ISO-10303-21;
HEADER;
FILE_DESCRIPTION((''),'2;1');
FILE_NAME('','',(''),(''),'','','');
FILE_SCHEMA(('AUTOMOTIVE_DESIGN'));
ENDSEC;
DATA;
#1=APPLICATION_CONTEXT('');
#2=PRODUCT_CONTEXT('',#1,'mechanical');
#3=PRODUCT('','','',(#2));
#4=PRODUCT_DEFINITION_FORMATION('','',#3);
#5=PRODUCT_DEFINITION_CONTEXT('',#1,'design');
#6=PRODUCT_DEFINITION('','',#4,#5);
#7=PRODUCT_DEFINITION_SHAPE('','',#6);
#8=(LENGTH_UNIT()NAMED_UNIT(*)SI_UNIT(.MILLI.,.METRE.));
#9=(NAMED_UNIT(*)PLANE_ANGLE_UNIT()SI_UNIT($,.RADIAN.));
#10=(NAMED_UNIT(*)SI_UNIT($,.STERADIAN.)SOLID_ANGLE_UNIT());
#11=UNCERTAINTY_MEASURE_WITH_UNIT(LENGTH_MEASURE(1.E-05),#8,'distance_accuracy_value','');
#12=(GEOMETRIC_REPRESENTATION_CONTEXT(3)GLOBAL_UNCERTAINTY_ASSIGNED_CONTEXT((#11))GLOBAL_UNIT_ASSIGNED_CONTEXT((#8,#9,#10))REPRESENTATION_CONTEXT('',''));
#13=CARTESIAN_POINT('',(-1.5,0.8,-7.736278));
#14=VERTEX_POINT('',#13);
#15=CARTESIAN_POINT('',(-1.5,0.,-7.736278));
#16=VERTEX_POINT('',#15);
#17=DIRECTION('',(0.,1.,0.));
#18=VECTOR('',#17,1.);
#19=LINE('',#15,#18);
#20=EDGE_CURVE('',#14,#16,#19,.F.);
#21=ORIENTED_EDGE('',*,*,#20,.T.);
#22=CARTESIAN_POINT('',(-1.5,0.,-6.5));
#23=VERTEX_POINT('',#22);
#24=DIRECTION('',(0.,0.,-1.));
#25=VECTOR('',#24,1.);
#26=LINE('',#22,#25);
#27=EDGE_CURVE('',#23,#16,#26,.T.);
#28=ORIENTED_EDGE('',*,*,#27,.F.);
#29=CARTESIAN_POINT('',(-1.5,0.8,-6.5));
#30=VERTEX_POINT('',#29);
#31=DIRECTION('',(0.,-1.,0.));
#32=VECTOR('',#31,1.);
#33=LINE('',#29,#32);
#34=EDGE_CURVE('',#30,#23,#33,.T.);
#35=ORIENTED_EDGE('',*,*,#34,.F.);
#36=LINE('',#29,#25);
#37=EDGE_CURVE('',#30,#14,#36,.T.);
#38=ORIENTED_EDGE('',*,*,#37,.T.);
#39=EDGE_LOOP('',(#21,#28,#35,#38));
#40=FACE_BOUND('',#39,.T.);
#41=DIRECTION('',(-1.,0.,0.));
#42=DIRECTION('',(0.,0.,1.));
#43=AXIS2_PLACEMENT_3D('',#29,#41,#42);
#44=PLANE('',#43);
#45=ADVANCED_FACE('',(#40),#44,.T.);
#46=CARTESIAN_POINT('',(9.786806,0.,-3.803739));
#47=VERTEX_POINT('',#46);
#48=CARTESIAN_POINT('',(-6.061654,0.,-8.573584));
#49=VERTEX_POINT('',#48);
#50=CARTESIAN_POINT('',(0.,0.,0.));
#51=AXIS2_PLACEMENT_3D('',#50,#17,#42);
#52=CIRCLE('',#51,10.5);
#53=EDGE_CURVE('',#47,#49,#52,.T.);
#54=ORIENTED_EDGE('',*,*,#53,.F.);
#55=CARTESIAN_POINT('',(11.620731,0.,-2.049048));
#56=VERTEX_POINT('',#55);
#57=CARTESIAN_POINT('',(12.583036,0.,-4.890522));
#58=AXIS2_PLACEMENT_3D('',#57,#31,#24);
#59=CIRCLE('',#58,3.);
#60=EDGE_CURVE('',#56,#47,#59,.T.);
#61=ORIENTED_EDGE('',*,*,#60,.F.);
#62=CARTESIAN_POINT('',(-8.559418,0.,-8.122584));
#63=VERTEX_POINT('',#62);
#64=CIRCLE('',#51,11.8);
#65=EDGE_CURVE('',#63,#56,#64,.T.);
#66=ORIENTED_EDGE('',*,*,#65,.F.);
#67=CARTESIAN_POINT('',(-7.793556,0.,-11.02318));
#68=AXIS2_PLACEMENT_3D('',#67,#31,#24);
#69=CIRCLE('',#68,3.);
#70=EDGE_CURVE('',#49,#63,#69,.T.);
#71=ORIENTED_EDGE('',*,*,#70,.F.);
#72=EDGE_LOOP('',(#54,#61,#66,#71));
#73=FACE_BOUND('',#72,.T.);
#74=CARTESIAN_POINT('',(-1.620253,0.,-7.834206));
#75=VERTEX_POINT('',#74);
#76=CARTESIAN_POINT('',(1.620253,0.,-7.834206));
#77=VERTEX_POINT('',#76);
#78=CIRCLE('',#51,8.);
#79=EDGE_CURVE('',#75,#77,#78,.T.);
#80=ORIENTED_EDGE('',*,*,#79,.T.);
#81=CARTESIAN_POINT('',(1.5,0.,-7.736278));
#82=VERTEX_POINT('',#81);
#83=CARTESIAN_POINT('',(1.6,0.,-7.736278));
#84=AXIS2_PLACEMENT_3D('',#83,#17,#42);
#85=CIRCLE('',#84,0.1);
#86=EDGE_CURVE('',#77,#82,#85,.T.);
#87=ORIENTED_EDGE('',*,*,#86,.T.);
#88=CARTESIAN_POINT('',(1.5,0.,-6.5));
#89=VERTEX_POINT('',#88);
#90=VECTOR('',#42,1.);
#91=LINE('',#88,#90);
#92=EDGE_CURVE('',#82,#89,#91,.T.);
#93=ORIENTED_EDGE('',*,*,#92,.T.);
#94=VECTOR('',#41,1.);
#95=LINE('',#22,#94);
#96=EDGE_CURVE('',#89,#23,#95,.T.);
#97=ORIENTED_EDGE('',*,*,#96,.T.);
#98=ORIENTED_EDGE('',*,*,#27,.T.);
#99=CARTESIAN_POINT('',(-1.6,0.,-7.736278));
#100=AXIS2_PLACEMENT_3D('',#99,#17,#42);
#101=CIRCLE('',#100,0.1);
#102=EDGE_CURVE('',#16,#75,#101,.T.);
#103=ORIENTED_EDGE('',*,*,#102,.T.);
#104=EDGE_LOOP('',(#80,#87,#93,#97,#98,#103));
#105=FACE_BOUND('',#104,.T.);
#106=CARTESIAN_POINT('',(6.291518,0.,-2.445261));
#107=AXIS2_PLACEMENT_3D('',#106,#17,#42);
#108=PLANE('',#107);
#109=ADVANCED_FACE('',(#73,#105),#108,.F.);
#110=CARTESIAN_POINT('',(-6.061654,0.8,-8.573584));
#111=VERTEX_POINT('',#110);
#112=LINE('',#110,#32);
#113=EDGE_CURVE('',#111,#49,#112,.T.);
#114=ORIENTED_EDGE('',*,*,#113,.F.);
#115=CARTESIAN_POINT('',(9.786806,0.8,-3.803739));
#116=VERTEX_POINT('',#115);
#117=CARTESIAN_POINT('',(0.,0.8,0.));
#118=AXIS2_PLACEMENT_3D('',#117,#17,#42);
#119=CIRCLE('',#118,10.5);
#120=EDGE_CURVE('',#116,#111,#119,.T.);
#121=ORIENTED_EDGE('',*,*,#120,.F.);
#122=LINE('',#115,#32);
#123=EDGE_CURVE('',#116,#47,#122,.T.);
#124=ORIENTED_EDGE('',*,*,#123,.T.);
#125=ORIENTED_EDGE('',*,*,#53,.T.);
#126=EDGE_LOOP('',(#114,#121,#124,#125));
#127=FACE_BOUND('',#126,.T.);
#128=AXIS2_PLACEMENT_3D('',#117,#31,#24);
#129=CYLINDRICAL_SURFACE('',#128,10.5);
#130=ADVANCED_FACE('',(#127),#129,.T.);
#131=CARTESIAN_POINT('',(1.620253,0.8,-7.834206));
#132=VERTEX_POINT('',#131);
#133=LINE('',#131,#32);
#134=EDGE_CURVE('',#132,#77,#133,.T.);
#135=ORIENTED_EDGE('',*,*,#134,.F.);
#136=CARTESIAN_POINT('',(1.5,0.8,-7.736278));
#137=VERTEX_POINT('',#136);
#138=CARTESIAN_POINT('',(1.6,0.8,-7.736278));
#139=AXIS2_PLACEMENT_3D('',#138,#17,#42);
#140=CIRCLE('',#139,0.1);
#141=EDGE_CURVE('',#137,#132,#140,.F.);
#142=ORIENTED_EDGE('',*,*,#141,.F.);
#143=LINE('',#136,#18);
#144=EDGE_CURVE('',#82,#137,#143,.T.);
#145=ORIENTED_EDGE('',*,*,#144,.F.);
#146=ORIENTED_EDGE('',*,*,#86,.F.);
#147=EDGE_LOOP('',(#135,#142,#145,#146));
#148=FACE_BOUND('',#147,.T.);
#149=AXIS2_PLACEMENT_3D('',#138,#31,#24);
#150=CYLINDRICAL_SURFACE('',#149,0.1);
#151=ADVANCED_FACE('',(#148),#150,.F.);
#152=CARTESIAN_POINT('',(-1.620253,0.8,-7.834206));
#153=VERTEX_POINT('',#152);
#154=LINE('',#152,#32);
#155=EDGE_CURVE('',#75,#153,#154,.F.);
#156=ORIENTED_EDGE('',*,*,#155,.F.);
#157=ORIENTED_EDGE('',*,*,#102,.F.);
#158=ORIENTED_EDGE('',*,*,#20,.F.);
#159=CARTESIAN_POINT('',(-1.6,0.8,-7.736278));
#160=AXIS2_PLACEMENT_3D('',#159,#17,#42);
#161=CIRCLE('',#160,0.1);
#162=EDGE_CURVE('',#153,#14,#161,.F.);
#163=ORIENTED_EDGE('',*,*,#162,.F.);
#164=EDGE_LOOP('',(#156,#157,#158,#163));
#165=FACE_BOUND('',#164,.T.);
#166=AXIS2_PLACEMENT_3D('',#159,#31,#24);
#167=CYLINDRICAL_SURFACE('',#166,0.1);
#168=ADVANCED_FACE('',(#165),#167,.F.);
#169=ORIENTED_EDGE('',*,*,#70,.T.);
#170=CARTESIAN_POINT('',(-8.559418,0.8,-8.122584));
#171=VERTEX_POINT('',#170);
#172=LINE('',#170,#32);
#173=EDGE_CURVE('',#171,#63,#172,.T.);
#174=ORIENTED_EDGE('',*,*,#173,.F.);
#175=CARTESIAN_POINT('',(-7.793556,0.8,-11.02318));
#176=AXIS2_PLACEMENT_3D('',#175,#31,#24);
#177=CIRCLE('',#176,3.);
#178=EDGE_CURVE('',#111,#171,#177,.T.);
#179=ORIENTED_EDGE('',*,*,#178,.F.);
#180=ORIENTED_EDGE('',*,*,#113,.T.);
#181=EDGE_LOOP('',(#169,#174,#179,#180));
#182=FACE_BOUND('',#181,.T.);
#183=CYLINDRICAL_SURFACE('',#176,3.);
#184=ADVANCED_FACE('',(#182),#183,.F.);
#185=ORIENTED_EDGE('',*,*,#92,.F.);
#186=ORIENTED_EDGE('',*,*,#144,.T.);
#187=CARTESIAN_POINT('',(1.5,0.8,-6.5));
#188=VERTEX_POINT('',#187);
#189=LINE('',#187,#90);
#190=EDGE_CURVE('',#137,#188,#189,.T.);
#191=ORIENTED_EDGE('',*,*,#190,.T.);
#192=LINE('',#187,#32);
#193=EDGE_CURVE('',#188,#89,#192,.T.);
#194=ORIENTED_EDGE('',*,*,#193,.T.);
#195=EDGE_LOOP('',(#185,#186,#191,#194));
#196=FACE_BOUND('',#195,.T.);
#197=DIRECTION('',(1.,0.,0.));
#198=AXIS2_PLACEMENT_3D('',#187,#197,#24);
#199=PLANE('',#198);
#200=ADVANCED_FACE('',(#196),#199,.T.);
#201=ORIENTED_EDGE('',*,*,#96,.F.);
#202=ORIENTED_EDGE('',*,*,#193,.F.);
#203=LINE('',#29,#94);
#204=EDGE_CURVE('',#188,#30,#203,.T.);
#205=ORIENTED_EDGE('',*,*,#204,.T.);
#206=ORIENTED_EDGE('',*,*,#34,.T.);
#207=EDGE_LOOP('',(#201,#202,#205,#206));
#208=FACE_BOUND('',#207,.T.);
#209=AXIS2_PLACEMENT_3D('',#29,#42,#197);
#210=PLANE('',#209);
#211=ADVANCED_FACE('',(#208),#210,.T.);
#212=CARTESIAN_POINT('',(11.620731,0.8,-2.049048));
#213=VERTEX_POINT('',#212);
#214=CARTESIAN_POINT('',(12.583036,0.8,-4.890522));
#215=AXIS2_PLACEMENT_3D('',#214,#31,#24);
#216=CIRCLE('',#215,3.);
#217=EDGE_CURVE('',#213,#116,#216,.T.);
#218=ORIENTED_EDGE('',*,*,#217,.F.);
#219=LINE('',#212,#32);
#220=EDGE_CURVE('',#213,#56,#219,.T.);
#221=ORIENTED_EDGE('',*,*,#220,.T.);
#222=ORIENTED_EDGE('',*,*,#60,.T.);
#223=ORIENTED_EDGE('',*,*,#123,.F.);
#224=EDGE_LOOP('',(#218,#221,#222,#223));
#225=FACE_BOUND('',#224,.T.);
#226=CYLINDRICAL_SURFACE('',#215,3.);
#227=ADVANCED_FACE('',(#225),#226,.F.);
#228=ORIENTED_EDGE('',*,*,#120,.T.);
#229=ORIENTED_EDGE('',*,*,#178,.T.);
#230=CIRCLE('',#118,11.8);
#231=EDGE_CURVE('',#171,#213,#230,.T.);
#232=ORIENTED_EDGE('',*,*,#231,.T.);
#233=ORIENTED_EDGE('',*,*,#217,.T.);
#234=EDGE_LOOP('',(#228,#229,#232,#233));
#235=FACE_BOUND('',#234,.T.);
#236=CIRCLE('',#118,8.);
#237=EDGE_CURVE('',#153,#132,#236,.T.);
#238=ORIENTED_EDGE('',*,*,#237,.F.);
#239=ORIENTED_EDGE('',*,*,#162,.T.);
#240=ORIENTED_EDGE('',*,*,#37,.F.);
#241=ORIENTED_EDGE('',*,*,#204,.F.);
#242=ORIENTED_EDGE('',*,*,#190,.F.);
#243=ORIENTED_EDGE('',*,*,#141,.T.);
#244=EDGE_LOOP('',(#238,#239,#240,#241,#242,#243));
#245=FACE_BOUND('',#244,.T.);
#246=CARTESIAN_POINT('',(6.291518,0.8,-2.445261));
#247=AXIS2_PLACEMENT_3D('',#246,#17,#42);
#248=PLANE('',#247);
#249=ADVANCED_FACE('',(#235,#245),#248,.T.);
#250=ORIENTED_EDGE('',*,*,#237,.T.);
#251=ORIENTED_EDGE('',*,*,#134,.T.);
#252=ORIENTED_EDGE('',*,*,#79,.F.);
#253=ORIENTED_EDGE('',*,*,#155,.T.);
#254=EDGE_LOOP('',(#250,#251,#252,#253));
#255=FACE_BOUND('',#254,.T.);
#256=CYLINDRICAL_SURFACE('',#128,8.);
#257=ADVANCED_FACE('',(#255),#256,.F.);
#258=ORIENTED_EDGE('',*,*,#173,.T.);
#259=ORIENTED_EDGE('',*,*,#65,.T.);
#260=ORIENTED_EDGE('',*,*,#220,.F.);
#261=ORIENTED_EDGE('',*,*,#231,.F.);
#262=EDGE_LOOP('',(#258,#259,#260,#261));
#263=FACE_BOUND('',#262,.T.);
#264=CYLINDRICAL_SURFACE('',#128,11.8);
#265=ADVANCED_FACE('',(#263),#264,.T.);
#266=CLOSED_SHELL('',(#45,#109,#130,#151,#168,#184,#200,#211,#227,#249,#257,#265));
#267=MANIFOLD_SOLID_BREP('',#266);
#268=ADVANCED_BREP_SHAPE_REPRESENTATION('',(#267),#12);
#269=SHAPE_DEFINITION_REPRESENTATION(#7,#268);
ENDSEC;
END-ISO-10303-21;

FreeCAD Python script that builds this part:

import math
import FreeCAD as App
import Part
import Sketcher
from FreeCAD import Vector
Q = App.Units.Quantity


def edges_at(feature, points):
    """Names of the edges that pass closest to the given points."""
    edges = feature.Shape.Edges
    near = lambda p: min(range(len(edges)), key=lambda i: edges[i].distToShape(Part.Vertex(*p))[0])
    return sorted({f"Edge{near(p) + 1}" for p in points})

doc = App.newDocument("Part")
body = doc.addObject("PartDesign::Body", "Body")

sketch1 = body.newObject("Sketcher::SketchObject", "Sketch")
sketch1.AttachmentSupport = (doc.getObject("XZ_Plane"), [""])
sketch1.MapMode = "FlatFace"
sketch1.addGeometry([
    Part.ArcOfCircle(Part.Circle(Vector(0, 0, 0), Vector(0, 0, 1), 10.5), math.radians(-125), math.radians(-21)),
    Part.ArcOfCircle(Part.Circle(Vector(-7.8, -11, 0), Vector(0, 0, 1), 3), math.radians(55), math.radians(105)),
    Part.ArcOfCircle(Part.Circle(Vector(0, 0, 0), Vector(0, 0, 1), 11.8), math.radians(-10), math.radians(223)),
    Part.ArcOfCircle(Part.Circle(Vector(12.6, -4.9, 0), Vector(0, 0, 1), 3), math.radians(109), math.radians(159)),
    Part.LineSegment(Vector(-1.5, -7.9, 0), Vector(-1.5, -6.5, 0)),
    Part.LineSegment(Vector(-1.5, -6.5, 0), Vector(1.5, -6.5, 0)),
    Part.LineSegment(Vector(1.5, -6.5, 0), Vector(1.5, -7.9, 0)),
    Part.ArcOfCircle(Part.Circle(Vector(0, 0, 0), Vector(0, 0, 1), 8), math.radians(-79), math.radians(259)),
], False)
sketch1.addConstraint([
    Sketcher.Constraint("Tangent", 0, 1, 1, 1),
    Sketcher.Constraint("Coincident", 1, 2, 2, 2),
    Sketcher.Constraint("Coincident", 2, 1, 3, 1),
    Sketcher.Constraint("Tangent", 3, 2, 0, 2),
    Sketcher.Constraint("Coincident", 4, 2, 5, 1),
    Sketcher.Constraint("Coincident", 5, 2, 6, 1),
    Sketcher.Constraint("Coincident", 6, 2, 7, 1),
    Sketcher.Constraint("Coincident", 7, 2, 4, 1),
    Sketcher.Constraint("Vertical", 4),
    Sketcher.Constraint("Horizontal", 5),
    Sketcher.Constraint("Vertical", 6),
    Sketcher.Constraint("Coincident", 0, 3, -1, 1),
    Sketcher.Constraint("Coincident", 2, 3, -1, 1),
    Sketcher.Constraint("Coincident", 7, 3, -1, 1),
    Sketcher.Constraint("Equal", 1, 3),
    Sketcher.Constraint("Horizontal", 6, 2, 7, 2),
    Sketcher.Constraint("Radius", 1, Q("3 mm")),
    Sketcher.Constraint("Radius", 7, Q("8 mm")),
    Sketcher.Constraint("Radius", 0, Q("10.5 mm")),
    Sketcher.Constraint("Radius", 2, Q("11.8 mm")),
    Sketcher.Constraint("DistanceX", 5, 1, 5, 2, Q("3 mm")),
    Sketcher.Constraint("DistanceY", 4, 2, -1, 1, Q("6.5 mm")),
    Sketcher.Constraint("DistanceY", 0, 1, 1, 2, Q("0.451 mm")),
    Sketcher.Constraint("DistanceY", 3, 3, -1, 1, Q("4.890522 mm")),
])
pad1 = body.newObject("PartDesign::Pad", "Pad")
pad1.Profile = sketch1
pad1.Length = 0.8
pad1.Reversed = True
doc.recompute()

fillet = body.newObject("PartDesign::Fillet", "Fillet")
fillet.Base = (pad1, edges_at(pad1, [(-1.5, 0.4, -7.858), (1.5, 0.4, -7.858)]))
fillet.Radius = 0.1

doc.recompute()
